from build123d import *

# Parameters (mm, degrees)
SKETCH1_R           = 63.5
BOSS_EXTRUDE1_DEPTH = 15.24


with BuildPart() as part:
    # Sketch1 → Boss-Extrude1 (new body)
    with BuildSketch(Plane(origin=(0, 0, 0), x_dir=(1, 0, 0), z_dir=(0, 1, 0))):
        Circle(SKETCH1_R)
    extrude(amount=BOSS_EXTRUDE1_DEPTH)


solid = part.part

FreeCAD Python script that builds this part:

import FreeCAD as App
import Part
import Sketcher

V = App.Vector
Q = App.Units.Quantity

doc = App.newDocument("Part")
body = doc.addObject("PartDesign::Body", "Body")

# Sketch on XZ plane
sketch1 = doc.addObject("Sketcher::SketchObject", "Sketch")
body.addObject(sketch1)
sketch1.AttachmentSupport = (doc.XZ_Plane, [""])
sketch1.MapMode = "FlatFace"
sketch1.addGeometry(Part.Circle(V(0, 0, 0), V(0, 0, 1), 63.5), False)
sketch1.addConstraint([
    Sketcher.Constraint("Coincident", 0, 3, -1, 1),
    Sketcher.Constraint("Diameter", 0, Q("5 in")),
])
pad1 = doc.addObject("PartDesign::Pad", "Pad")
body.addObject(pad1)
pad1.Profile = sketch1
pad1.Length = Q("0.6 in")
pad1.Reversed = True

doc.recompute()
